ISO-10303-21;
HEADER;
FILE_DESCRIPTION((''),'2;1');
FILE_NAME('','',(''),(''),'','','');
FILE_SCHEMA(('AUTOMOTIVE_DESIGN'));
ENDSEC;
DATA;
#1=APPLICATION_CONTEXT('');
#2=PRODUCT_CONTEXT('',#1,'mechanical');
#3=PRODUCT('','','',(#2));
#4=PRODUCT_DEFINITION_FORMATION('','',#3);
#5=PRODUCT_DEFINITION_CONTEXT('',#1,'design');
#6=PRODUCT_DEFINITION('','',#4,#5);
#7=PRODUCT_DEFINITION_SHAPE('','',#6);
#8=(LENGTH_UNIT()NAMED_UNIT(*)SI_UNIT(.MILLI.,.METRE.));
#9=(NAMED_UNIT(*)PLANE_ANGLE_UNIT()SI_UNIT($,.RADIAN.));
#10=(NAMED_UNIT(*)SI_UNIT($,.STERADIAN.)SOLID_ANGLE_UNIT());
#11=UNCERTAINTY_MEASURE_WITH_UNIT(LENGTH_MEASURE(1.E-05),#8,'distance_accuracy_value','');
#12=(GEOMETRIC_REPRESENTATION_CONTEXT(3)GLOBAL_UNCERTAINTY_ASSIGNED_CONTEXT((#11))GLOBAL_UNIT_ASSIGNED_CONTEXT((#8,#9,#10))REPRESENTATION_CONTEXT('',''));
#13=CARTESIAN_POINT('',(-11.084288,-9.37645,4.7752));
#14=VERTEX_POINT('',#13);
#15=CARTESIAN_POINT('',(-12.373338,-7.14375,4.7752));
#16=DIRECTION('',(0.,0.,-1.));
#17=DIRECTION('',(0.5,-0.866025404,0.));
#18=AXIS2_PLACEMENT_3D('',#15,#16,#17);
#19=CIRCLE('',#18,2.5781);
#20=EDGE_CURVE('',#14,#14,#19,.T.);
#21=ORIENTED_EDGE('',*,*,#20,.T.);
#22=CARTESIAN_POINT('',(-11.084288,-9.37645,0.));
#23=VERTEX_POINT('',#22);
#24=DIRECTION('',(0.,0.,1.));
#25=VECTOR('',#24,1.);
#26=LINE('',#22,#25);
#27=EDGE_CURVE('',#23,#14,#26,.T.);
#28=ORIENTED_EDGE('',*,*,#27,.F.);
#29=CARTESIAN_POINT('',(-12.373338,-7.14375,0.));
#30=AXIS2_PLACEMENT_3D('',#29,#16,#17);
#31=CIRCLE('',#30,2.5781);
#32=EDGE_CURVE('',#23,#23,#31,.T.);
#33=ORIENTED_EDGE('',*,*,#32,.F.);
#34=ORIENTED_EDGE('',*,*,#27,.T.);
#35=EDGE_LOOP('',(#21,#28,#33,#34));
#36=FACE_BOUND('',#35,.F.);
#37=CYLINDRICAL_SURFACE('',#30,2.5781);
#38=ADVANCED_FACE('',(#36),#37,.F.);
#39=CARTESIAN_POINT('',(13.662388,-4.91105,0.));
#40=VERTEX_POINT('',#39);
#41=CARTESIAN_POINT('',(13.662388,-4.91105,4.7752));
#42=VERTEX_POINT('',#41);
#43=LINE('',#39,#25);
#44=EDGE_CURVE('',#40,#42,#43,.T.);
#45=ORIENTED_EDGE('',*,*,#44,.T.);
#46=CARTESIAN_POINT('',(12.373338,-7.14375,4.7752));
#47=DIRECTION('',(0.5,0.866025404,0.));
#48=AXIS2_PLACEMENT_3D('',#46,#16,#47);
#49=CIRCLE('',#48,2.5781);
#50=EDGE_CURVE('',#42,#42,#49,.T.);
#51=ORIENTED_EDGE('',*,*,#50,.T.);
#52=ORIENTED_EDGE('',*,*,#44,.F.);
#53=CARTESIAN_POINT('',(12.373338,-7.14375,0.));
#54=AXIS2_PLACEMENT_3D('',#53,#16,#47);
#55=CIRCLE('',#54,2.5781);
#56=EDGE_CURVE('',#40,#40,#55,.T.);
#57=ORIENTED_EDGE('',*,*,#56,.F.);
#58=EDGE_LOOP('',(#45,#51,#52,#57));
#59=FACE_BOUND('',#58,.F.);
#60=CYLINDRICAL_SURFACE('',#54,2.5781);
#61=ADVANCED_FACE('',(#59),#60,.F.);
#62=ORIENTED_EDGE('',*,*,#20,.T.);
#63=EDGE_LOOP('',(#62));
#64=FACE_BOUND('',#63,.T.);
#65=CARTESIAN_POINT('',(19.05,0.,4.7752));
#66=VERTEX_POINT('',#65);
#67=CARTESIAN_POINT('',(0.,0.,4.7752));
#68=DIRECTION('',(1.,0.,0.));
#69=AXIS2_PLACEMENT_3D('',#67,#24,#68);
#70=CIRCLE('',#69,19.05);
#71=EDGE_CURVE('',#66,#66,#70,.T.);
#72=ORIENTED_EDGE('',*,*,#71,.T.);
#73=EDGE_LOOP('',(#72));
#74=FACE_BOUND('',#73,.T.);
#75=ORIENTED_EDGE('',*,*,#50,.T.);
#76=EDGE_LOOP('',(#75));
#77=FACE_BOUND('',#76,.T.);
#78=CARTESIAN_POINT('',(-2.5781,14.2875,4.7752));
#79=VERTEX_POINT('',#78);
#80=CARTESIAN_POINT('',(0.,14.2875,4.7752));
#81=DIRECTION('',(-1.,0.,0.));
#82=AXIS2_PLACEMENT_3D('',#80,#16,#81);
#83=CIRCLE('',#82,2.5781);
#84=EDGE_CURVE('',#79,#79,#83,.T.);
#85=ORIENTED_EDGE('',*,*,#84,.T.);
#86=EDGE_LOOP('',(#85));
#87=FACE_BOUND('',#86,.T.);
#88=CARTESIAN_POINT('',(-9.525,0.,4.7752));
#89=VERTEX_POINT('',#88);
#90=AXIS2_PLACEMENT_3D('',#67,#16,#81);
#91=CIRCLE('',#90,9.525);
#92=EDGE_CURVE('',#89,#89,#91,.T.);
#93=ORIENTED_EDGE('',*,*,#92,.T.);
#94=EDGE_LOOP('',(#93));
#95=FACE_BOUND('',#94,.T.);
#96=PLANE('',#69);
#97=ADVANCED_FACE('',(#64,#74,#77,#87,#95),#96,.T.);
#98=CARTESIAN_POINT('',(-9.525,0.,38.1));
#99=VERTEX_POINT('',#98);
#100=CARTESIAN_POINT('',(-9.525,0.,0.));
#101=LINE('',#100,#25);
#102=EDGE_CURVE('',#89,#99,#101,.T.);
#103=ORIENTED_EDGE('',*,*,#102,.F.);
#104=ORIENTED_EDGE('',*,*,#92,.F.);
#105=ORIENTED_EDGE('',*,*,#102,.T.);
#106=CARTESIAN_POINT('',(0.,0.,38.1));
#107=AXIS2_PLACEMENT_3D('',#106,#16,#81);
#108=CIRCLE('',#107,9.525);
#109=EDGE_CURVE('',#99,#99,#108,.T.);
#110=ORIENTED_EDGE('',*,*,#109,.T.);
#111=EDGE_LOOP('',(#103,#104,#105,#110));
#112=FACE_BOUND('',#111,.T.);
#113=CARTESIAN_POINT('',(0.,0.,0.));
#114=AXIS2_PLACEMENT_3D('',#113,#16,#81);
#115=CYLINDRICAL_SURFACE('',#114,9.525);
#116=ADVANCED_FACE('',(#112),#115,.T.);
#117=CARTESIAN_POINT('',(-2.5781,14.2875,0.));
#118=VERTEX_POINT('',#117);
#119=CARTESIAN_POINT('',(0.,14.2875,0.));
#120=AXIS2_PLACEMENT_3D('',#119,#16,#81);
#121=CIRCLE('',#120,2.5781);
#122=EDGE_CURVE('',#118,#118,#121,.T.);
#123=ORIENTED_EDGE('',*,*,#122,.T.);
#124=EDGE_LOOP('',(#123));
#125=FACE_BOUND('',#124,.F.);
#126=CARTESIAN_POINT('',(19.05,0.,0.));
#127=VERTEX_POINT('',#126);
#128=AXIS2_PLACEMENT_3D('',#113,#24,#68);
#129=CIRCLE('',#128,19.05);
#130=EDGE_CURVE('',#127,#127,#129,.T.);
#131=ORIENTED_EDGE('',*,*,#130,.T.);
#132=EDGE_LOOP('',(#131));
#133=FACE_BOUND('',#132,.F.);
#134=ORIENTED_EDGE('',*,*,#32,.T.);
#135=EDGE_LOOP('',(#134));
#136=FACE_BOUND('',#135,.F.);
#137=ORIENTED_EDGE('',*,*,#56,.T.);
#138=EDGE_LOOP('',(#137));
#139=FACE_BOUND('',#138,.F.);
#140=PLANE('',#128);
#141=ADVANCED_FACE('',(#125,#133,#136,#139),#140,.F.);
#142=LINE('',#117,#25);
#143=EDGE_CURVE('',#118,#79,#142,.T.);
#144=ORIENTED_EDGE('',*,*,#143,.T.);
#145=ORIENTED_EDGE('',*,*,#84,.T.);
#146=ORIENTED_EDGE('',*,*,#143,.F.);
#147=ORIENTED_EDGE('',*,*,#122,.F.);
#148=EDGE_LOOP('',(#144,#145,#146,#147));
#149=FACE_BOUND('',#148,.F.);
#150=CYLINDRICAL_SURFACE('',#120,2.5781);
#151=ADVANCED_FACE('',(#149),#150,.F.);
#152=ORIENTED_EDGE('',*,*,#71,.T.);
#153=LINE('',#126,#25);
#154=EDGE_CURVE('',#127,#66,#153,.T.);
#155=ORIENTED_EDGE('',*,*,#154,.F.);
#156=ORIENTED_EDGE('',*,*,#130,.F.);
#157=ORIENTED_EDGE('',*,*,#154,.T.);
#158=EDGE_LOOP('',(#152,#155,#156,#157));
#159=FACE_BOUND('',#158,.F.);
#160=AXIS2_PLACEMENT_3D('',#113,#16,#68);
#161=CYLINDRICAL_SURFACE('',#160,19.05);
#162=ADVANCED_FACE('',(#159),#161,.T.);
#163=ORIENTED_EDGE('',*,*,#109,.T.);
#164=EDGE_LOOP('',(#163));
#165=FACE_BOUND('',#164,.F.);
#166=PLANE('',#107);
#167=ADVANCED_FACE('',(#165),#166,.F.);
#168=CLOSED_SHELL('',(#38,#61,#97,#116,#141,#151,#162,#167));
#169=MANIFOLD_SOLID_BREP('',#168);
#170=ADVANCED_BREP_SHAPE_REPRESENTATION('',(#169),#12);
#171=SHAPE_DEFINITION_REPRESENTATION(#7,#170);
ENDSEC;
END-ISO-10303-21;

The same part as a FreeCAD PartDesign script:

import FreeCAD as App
import Part
import Sketcher

V = App.Vector
Q = App.Units.Quantity

doc = App.newDocument("Part")
body = doc.addObject("PartDesign::Body", "Body")

# Sketch on XY plane
sketch1 = body.newObject("Sketcher::SketchObject", "Sketch")
sketch1.AttachmentSupport = (doc.getObject("XY_Plane"), [""])
sketch1.MapMode = "FlatFace"
sketch1.addGeometry(Part.Circle(V(0, 0, 0), V(0, 0, 1), 19), False)
sketch1.addConstraint([
    Sketcher.Constraint("Coincident", 0, 3, -1, 1),
    Sketcher.Constraint("Diameter", 0, Q("1.5 in")),
])
pad1 = body.newObject("PartDesign::Pad", "Pad")
pad1.Profile = sketch1
pad1.Length = Q("0.188 in")

# Sketch on XY plane
sketch2 = body.newObject("Sketcher::SketchObject", "Sketch001")
sketch2.AttachmentSupport = (doc.getObject("XY_Plane"), [""])
sketch2.MapMode = "FlatFace"
sketch2.addGeometry(Part.Circle(V(0, 0, 0), V(0, 0, 1), 10), False)
sketch2.addConstraint([
    Sketcher.Constraint("Coincident", 0, 3, -1, 1),
    Sketcher.Constraint("Diameter", 0, Q("0.75 in")),
])
pad2 = body.newObject("PartDesign::Pad", "Pad001")
pad2.Profile = sketch2
pad2.Length = Q("1.5 in")

# Sketch on XY plane
sketch3 = body.newObject("Sketcher::SketchObject", "Sketch002")
sketch3.AttachmentSupport = (doc.getObject("XY_Plane"), [""])
sketch3.MapMode = "FlatFace"
sketch3.addGeometry(Part.Circle(V(0, 14.3, 0), V(0, 0, 1), 2.6), False)
sketch3.addConstraint([
    Sketcher.Constraint("PointOnObject", 0, 3, -2),
    Sketcher.Constraint("Diameter", 0, Q("0.203 in")),
    Sketcher.Constraint("DistanceY", -1, 1, 0, 3, Q("0.5625 in")),
])
pocket1 = body.newObject("PartDesign::Pocket", "Pocket")
pocket1.Profile = sketch3
pocket1.Type = "ThroughAll"
pocket1.Reversed = True
doc.recompute()

polarpattern = body.newObject("PartDesign::PolarPattern", "PolarPattern")
polarpattern.Originals = [pocket1]
polarpattern.Axis = (doc.getObject("Z_Axis"), [""])
polarpattern.Angle = 360
polarpattern.Occurrences = 3
body.Tip = polarpattern

doc.recompute()
